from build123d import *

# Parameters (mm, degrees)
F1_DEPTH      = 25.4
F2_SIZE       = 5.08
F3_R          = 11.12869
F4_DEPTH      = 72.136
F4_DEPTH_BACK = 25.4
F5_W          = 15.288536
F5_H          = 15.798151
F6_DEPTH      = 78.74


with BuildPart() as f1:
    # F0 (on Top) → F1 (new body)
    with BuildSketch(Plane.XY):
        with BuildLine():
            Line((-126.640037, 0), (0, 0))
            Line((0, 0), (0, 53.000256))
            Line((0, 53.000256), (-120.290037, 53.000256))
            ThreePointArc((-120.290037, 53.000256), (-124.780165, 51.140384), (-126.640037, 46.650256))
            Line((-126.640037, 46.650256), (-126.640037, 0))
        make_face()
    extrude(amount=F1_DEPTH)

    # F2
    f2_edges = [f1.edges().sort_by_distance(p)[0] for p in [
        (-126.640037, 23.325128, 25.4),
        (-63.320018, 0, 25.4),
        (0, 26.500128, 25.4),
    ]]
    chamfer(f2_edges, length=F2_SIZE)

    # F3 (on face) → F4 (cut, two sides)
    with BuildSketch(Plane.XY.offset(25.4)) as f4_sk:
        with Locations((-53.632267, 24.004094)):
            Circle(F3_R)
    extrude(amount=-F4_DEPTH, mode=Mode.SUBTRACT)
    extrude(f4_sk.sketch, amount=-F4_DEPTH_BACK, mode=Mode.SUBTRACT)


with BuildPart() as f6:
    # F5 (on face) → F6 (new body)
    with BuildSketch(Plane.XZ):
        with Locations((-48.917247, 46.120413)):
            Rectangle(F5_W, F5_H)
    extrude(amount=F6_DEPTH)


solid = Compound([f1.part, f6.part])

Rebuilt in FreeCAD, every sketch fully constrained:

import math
import FreeCAD as App
import Part
import Sketcher

V = App.Vector
Q = App.Units.Quantity


def edges_at(feature, points):
    """Names of the edges that pass closest to the given points."""
    edges = feature.Shape.Edges
    near = lambda p: min(range(len(edges)), key=lambda i: edges[i].distToShape(Part.Vertex(*p))[0])
    return sorted({f"Edge{near(p) + 1}" for p in points})

doc = App.newDocument("Part")
body = doc.addObject("PartDesign::Body", "Body")

# Sketch on XY plane
sketch1 = body.newObject("Sketcher::SketchObject", "Sketch")
sketch1.AttachmentSupport = (doc.getObject("XY_Plane"), [""])
sketch1.MapMode = "FlatFace"
sketch1.addGeometry(Part.LineSegment(V(-127, 0, 0), V(0, 0, 0)), False)
sketch1.addGeometry(Part.LineSegment(V(0, 0, 0), V(0, 53, 0)), False)
sketch1.addGeometry(Part.LineSegment(V(0, 53, 0), V(-120, 53, 0)), False)
sketch1.addGeometry(Part.ArcOfCircle(Part.Circle(V(-120, 47, 0), V(0, 0, 1), 6), math.radians(90), math.radians(180)), False)
sketch1.addGeometry(Part.LineSegment(V(-127, 47, 0), V(-127, 0, 0)), False)
sketch1.addConstraint(Sketcher.Constraint("Coincident", 0, 2, 1, 1))
sketch1.addConstraint(Sketcher.Constraint("Coincident", 1, 2, 2, 1))
sketch1.addConstraint(Sketcher.Constraint("Tangent", 2, 2, 3, 1))
sketch1.addConstraint(Sketcher.Constraint("Tangent", 3, 2, 4, 1))
sketch1.addConstraint(Sketcher.Constraint("Coincident", 4, 2, 0, 1))
sketch1.addConstraint(Sketcher.Constraint("Horizontal", 0))
sketch1.addConstraint(Sketcher.Constraint("Vertical", 1))
sketch1.addConstraint(Sketcher.Constraint("Horizontal", 2))
sketch1.addConstraint(Sketcher.Constraint("Vertical", 4))
sketch1.addConstraint(Sketcher.Constraint("Coincident", 0, 2, -1, 1))
sketch1.addConstraint(Sketcher.Constraint("Radius", 3, Q("0.25 in")))
sketch1.addConstraint(Sketcher.Constraint("DistanceX", 0, 1, 0, 2, 126.640037))
sketch1.addConstraint(Sketcher.Constraint("DistanceY", 1, 1, 1, 2, 53.000256))
pad1 = body.newObject("PartDesign::Pad", "Pad")
pad1.Profile = sketch1
pad1.Length = Q("1 in")
doc.recompute()

chamfer = body.newObject("PartDesign::Chamfer", "Chamfer")
chamfer.Base = (pad1, edges_at(pad1, [(-126.64, 23.325, 25.4), (-63.32, 0, 25.4), (0, 26.5, 25.4)]))
chamfer.Size = Q("0.2 in")

# Sketch on XY plane
sketch2 = body.newObject("Sketcher::SketchObject", "Sketch001")
sketch2.AttachmentSupport = (doc.getObject("XY_Plane"), [""])
sketch2.MapMode = "FlatFace"
sketch2.AttachmentOffset = App.Placement(V(0, 0, 1 * 25.4), App.Rotation())
sketch2.addGeometry(Part.Circle(V(-54, 24, 0), V(0, 0, 1), 11), False)
sketch2.addConstraint(Sketcher.Constraint("Diameter", 0, 22.25738))
sketch2.addConstraint(Sketcher.Constraint("DistanceX", 0, 3, -1, 1, 53.632267))
sketch2.addConstraint(Sketcher.Constraint("DistanceY", -1, 1, 0, 3, 24.004094))
pocket1 = body.newObject("PartDesign::Pocket", "Pocket")
pocket1.Profile = sketch2
pocket1.Length = Q("2.84 in")
pocket2 = body.newObject("PartDesign::Pocket", "Pocket001")
pocket2.Profile = sketch2
pocket2.Length = Q("1 in")
body2 = doc.addObject("PartDesign::Body", "Body001")

# Sketch on XZ plane
sketch3 = body2.newObject("Sketcher::SketchObject", "Sketch002")
sketch3.AttachmentSupport = (doc.getObject("XZ_Plane001"), [""])
sketch3.MapMode = "FlatFace"
sketch3.addGeometry(Part.LineSegment(V(-57, 54, 0), V(-57, 38, 0)), False)
sketch3.addGeometry(Part.LineSegment(V(-57, 38, 0), V(-41, 38, 0)), False)
sketch3.addGeometry(Part.LineSegment(V(-41, 38, 0), V(-41, 54, 0)), False)
sketch3.addGeometry(Part.LineSegment(V(-41, 54, 0), V(-57, 54, 0)), False)
sketch3.addConstraint(Sketcher.Constraint("Coincident", 0, 2, 1, 1))
sketch3.addConstraint(Sketcher.Constraint("Coincident", 1, 2, 2, 1))
sketch3.addConstraint(Sketcher.Constraint("Coincident", 2, 2, 3, 1))
sketch3.addConstraint(Sketcher.Constraint("Coincident", 3, 2, 0, 1))
sketch3.addConstraint(Sketcher.Constraint("Vertical", 0))
sketch3.addConstraint(Sketcher.Constraint("Horizontal", 1))
sketch3.addConstraint(Sketcher.Constraint("Vertical", 2))
sketch3.addConstraint(Sketcher.Constraint("Horizontal", 3))
sketch3.addConstraint(Sketcher.Constraint("DistanceY", 0, 2, 0, 1, 15.798151))
sketch3.addConstraint(Sketcher.Constraint("DistanceX", 1, 1, 1, 2, 15.288536))
sketch3.addConstraint(Sketcher.Constraint("DistanceX", 1, 2, -1, 1, 41.272979))
sketch3.addConstraint(Sketcher.Constraint("DistanceY", -1, 1, 2, 2, 54.019489))
pad2 = body2.newObject("PartDesign::Pad", "Pad001")
pad2.Profile = sketch3
pad2.Length = Q("3.1 in")

doc.recompute()
